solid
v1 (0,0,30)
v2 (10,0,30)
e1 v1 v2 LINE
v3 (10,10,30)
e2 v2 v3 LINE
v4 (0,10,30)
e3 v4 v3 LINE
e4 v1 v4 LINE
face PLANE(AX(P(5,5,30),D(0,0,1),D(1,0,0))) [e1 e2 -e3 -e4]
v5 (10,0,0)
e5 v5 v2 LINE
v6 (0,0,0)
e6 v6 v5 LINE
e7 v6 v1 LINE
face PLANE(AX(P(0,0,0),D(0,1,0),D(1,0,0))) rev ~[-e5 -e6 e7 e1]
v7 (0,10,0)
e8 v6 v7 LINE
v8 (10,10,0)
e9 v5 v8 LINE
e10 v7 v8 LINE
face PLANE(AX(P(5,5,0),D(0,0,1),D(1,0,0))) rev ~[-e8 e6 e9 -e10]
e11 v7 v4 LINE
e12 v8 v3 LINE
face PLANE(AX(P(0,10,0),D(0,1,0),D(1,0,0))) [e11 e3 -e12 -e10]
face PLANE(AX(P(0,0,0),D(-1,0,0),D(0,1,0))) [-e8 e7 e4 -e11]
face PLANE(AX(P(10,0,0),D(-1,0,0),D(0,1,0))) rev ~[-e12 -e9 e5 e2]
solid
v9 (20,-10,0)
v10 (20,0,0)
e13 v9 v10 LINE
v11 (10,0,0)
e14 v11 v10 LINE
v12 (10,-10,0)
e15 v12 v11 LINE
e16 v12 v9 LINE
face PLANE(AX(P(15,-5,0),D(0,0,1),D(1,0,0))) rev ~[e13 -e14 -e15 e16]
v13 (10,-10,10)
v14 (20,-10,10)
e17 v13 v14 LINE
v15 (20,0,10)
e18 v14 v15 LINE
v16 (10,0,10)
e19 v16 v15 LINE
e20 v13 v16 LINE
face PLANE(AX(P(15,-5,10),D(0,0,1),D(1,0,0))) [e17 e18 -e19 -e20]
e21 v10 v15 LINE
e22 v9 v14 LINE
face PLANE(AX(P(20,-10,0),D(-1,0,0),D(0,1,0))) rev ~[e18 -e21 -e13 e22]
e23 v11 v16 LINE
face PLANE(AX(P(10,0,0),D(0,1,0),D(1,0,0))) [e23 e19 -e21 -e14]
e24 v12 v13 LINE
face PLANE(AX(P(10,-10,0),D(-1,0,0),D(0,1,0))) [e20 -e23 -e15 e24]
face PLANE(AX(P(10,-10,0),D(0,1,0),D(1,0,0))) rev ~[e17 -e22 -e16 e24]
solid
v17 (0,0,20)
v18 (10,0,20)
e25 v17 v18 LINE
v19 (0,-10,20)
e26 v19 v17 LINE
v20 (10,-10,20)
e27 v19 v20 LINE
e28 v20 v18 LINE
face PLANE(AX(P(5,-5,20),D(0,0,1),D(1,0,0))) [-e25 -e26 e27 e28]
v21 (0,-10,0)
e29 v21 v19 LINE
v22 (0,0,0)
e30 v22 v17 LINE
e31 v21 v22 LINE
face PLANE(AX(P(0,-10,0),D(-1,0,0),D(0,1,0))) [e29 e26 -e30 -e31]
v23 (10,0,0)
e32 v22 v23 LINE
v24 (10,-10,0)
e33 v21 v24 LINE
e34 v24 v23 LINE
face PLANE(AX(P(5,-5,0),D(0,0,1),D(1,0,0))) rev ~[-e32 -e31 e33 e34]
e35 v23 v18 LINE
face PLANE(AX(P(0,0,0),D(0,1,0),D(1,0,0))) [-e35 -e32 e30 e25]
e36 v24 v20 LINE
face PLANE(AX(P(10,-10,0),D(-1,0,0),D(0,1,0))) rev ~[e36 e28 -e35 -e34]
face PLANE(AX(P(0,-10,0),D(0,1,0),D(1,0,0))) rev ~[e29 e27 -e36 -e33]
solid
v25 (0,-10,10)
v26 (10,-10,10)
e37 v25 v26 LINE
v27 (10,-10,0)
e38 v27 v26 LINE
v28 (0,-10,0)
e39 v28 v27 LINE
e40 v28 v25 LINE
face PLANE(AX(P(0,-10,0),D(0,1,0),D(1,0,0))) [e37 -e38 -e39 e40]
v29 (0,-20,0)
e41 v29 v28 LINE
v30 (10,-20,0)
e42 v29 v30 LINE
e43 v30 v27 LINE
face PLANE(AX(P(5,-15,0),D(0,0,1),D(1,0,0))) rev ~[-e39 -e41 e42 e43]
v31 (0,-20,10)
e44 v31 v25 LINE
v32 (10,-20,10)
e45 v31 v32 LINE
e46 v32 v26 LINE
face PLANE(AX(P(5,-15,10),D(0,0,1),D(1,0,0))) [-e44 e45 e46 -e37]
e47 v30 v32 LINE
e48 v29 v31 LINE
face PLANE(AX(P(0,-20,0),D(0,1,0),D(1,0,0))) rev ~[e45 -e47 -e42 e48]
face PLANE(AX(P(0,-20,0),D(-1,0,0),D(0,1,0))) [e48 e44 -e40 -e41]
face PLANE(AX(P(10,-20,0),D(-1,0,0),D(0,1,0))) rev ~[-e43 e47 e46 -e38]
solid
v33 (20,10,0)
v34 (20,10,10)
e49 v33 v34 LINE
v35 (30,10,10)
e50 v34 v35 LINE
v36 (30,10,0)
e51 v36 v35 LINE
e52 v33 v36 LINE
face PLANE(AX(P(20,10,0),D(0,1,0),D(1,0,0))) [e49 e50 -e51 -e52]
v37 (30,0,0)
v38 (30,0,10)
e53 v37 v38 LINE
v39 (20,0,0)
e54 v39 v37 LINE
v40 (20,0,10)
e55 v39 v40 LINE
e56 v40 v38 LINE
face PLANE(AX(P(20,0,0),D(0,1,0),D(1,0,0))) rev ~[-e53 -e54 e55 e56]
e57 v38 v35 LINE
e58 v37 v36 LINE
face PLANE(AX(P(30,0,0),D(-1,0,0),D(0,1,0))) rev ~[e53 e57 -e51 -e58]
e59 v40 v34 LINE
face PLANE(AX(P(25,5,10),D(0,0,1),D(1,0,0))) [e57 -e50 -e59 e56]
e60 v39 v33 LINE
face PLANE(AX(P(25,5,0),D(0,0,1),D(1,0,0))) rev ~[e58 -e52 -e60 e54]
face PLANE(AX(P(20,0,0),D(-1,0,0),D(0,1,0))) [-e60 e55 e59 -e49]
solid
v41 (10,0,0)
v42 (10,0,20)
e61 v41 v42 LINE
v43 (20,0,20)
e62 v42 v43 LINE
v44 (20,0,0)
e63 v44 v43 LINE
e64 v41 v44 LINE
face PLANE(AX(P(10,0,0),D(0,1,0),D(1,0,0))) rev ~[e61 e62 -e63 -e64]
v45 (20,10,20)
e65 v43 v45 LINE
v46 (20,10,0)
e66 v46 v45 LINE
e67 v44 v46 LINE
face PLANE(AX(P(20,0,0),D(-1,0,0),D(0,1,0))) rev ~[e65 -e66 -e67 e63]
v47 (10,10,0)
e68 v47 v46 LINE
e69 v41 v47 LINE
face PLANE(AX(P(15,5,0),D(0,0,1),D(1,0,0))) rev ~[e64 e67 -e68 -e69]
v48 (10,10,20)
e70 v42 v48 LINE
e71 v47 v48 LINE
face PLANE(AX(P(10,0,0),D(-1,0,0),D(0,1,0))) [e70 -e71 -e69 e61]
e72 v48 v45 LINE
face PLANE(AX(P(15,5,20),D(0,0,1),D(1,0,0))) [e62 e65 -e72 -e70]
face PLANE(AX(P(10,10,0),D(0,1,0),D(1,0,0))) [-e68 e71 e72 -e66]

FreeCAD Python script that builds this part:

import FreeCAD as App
import Part
import Sketcher

V = App.Vector
Q = App.Units.Quantity


def add_polygon(sketch, points):
    """Adds a closed chain of lines whose ends are joined by coincident constraints."""
    first, n = sketch.GeometryCount, len(points)
    for a, b in zip(points, points[1:] + points[:1]):
        sketch.addGeometry(Part.LineSegment(App.Vector(*a, 0), App.Vector(*b, 0)), False)
    for i in range(n):
        sketch.addConstraint(Sketcher.Constraint("Coincident", first + i, 2, first + (i + 1) % n, 1))

doc = App.newDocument("Part")
body = doc.addObject("PartDesign::Body", "Body")

# Sketch on XY plane
sketch1 = doc.addObject("Sketcher::SketchObject", "Sketch")
body.addObject(sketch1)
sketch1.AttachmentSupport = (doc.XY_Plane, [""])
sketch1.MapMode = "FlatFace"
add_polygon(sketch1, [(0, 10), (0, 0), (10, 0), (10, 10)])  # lines 0-3
sketch1.addConstraint(Sketcher.Constraint("Vertical", 0))
sketch1.addConstraint(Sketcher.Constraint("Horizontal", 1))
sketch1.addConstraint(Sketcher.Constraint("Vertical", 2))
sketch1.addConstraint(Sketcher.Constraint("Horizontal", 3))
sketch1.addConstraint(Sketcher.Constraint("Coincident", 0, 2, -1, 1))
sketch1.addConstraint(Sketcher.Constraint("Equal", 3, 0))
sketch1.addConstraint(Sketcher.Constraint("DistanceX", 1, 1, 1, 2, Q("10 mm")))
pad1 = doc.addObject("PartDesign::Pad", "Pad")
body.addObject(pad1)
pad1.Profile = sketch1
pad1.Length = 30
body2 = doc.addObject("PartDesign::Body", "Body001")

# Sketch on XY plane
sketch2 = doc.addObject("Sketcher::SketchObject", "Sketch001")
body2.addObject(sketch2)
sketch2.AttachmentSupport = (doc.getObject("XY_Plane001"), [""])
sketch2.MapMode = "FlatFace"
add_polygon(sketch2, [(10, 10), (10, 0), (20, 0), (20, 10)])  # lines 0-3
sketch2.addConstraint(Sketcher.Constraint("Vertical", 0))
sketch2.addConstraint(Sketcher.Constraint("Horizontal", 1))
sketch2.addConstraint(Sketcher.Constraint("Vertical", 2))
sketch2.addConstraint(Sketcher.Constraint("Horizontal", 3))
sketch2.addConstraint(Sketcher.Constraint("PointOnObject", 0, 2, -1))
sketch2.addConstraint(Sketcher.Constraint("Equal", 3, 0))
sketch2.addConstraint(Sketcher.Constraint("DistanceX", 1, 1, 1, 2, Q("10 mm")))
sketch2.addConstraint(Sketcher.Constraint("DistanceX", -1, 1, 0, 2, Q("10 mm")))
pad2 = doc.addObject("PartDesign::Pad", "Pad001")
body2.addObject(pad2)
pad2.Profile = sketch2
pad2.Length = 20
body3 = doc.addObject("PartDesign::Body", "Body002")

# Sketch on XY plane
sketch3 = doc.addObject("Sketcher::SketchObject", "Sketch002")
body3.addObject(sketch3)
sketch3.AttachmentSupport = (doc.getObject("XY_Plane002"), [""])
sketch3.MapMode = "FlatFace"
add_polygon(sketch3, [(0, 0), (0, -10), (10, -10), (10, 0)])  # lines 0-3
sketch3.addConstraint(Sketcher.Constraint("Vertical", 0))
sketch3.addConstraint(Sketcher.Constraint("Horizontal", 1))
sketch3.addConstraint(Sketcher.Constraint("Vertical", 2))
sketch3.addConstraint(Sketcher.Constraint("Horizontal", 3))
sketch3.addConstraint(Sketcher.Constraint("Coincident", 3, 2, -1, 1))
sketch3.addConstraint(Sketcher.Constraint("Equal", 3, 0))
sketch3.addConstraint(Sketcher.Constraint("DistanceX", 1, 1, 1, 2, Q("10 mm")))
pad3 = doc.addObject("PartDesign::Pad", "Pad002")
body3.addObject(pad3)
pad3.Profile = sketch3
pad3.Length = 20
body4 = doc.addObject("PartDesign::Body", "Body003")

# Sketch on XY plane
sketch4 = doc.addObject("Sketcher::SketchObject", "Sketch003")
body4.addObject(sketch4)
sketch4.AttachmentSupport = (doc.getObject("XY_Plane003"), [""])
sketch4.MapMode = "FlatFace"
add_polygon(sketch4, [(10, 0), (10, -10), (20, -10), (20, 0)])  # lines 0-3
sketch4.addConstraint(Sketcher.Constraint("Vertical", 0))
sketch4.addConstraint(Sketcher.Constraint("Horizontal", 1))
sketch4.addConstraint(Sketcher.Constraint("Vertical", 2))
sketch4.addConstraint(Sketcher.Constraint("Horizontal", 3))
sketch4.addConstraint(Sketcher.Constraint("PointOnObject", 2, 2, -1))
sketch4.addConstraint(Sketcher.Constraint("Equal", 3, 0))
sketch4.addConstraint(Sketcher.Constraint("DistanceX", 1, 1, 1, 2, Q("10 mm")))
sketch4.addConstraint(Sketcher.Constraint("DistanceX", -1, 1, 0, 2, Q("10 mm")))
pad4 = doc.addObject("PartDesign::Pad", "Pad003")
body4.addObject(pad4)
pad4.Profile = sketch4
pad4.Length = 10
body5 = doc.addObject("PartDesign::Body", "Body004")

# Sketch on XY plane
sketch5 = doc.addObject("Sketcher::SketchObject", "Sketch004")
body5.addObject(sketch5)
sketch5.AttachmentSupport = (doc.getObject("XY_Plane004"), [""])
sketch5.MapMode = "FlatFace"
add_polygon(sketch5, [(0, -10), (0, -20), (10, -20), (10, -10)])  # lines 0-3
sketch5.addConstraint(Sketcher.Constraint("Vertical", 0))
sketch5.addConstraint(Sketcher.Constraint("Horizontal", 1))
sketch5.addConstraint(Sketcher.Constraint("Vertical", 2))
sketch5.addConstraint(Sketcher.Constraint("Horizontal", 3))
sketch5.addConstraint(Sketcher.Constraint("PointOnObject", 0, 2, -2))
sketch5.addConstraint(Sketcher.Constraint("Equal", 3, 0))
sketch5.addConstraint(Sketcher.Constraint("DistanceX", 1, 1, 1, 2, Q("10 mm")))
sketch5.addConstraint(Sketcher.Constraint("DistanceY", 0, 2, -1, 1, Q("20 mm")))
pad5 = doc.addObject("PartDesign::Pad", "Pad004")
body5.addObject(pad5)
pad5.Profile = sketch5
pad5.Length = 10
body6 = doc.addObject("PartDesign::Body", "Body005")

# Sketch on XY plane
sketch6 = doc.addObject("Sketcher::SketchObject", "Sketch005")
body6.addObject(sketch6)
sketch6.AttachmentSupport = (doc.getObject("XY_Plane005"), [""])
sketch6.MapMode = "FlatFace"
add_polygon(sketch6, [(20, 10), (20, 0), (30, 0), (30, 10)])  # lines 0-3
sketch6.addConstraint(Sketcher.Constraint("Vertical", 0))
sketch6.addConstraint(Sketcher.Constraint("Horizontal", 1))
sketch6.addConstraint(Sketcher.Constraint("Vertical", 2))
sketch6.addConstraint(Sketcher.Constraint("Horizontal", 3))
sketch6.addConstraint(Sketcher.Constraint("PointOnObject", 0, 2, -1))
sketch6.addConstraint(Sketcher.Constraint("Equal", 3, 0))
sketch6.addConstraint(Sketcher.Constraint("DistanceX", 1, 1, 1, 2, Q("10 mm")))
sketch6.addConstraint(Sketcher.Constraint("DistanceX", -1, 1, 0, 2, Q("20 mm")))
pad6 = doc.addObject("PartDesign::Pad", "Pad005")
body6.addObject(pad6)
pad6.Profile = sketch6
pad6.Length = 10

doc.recompute()
